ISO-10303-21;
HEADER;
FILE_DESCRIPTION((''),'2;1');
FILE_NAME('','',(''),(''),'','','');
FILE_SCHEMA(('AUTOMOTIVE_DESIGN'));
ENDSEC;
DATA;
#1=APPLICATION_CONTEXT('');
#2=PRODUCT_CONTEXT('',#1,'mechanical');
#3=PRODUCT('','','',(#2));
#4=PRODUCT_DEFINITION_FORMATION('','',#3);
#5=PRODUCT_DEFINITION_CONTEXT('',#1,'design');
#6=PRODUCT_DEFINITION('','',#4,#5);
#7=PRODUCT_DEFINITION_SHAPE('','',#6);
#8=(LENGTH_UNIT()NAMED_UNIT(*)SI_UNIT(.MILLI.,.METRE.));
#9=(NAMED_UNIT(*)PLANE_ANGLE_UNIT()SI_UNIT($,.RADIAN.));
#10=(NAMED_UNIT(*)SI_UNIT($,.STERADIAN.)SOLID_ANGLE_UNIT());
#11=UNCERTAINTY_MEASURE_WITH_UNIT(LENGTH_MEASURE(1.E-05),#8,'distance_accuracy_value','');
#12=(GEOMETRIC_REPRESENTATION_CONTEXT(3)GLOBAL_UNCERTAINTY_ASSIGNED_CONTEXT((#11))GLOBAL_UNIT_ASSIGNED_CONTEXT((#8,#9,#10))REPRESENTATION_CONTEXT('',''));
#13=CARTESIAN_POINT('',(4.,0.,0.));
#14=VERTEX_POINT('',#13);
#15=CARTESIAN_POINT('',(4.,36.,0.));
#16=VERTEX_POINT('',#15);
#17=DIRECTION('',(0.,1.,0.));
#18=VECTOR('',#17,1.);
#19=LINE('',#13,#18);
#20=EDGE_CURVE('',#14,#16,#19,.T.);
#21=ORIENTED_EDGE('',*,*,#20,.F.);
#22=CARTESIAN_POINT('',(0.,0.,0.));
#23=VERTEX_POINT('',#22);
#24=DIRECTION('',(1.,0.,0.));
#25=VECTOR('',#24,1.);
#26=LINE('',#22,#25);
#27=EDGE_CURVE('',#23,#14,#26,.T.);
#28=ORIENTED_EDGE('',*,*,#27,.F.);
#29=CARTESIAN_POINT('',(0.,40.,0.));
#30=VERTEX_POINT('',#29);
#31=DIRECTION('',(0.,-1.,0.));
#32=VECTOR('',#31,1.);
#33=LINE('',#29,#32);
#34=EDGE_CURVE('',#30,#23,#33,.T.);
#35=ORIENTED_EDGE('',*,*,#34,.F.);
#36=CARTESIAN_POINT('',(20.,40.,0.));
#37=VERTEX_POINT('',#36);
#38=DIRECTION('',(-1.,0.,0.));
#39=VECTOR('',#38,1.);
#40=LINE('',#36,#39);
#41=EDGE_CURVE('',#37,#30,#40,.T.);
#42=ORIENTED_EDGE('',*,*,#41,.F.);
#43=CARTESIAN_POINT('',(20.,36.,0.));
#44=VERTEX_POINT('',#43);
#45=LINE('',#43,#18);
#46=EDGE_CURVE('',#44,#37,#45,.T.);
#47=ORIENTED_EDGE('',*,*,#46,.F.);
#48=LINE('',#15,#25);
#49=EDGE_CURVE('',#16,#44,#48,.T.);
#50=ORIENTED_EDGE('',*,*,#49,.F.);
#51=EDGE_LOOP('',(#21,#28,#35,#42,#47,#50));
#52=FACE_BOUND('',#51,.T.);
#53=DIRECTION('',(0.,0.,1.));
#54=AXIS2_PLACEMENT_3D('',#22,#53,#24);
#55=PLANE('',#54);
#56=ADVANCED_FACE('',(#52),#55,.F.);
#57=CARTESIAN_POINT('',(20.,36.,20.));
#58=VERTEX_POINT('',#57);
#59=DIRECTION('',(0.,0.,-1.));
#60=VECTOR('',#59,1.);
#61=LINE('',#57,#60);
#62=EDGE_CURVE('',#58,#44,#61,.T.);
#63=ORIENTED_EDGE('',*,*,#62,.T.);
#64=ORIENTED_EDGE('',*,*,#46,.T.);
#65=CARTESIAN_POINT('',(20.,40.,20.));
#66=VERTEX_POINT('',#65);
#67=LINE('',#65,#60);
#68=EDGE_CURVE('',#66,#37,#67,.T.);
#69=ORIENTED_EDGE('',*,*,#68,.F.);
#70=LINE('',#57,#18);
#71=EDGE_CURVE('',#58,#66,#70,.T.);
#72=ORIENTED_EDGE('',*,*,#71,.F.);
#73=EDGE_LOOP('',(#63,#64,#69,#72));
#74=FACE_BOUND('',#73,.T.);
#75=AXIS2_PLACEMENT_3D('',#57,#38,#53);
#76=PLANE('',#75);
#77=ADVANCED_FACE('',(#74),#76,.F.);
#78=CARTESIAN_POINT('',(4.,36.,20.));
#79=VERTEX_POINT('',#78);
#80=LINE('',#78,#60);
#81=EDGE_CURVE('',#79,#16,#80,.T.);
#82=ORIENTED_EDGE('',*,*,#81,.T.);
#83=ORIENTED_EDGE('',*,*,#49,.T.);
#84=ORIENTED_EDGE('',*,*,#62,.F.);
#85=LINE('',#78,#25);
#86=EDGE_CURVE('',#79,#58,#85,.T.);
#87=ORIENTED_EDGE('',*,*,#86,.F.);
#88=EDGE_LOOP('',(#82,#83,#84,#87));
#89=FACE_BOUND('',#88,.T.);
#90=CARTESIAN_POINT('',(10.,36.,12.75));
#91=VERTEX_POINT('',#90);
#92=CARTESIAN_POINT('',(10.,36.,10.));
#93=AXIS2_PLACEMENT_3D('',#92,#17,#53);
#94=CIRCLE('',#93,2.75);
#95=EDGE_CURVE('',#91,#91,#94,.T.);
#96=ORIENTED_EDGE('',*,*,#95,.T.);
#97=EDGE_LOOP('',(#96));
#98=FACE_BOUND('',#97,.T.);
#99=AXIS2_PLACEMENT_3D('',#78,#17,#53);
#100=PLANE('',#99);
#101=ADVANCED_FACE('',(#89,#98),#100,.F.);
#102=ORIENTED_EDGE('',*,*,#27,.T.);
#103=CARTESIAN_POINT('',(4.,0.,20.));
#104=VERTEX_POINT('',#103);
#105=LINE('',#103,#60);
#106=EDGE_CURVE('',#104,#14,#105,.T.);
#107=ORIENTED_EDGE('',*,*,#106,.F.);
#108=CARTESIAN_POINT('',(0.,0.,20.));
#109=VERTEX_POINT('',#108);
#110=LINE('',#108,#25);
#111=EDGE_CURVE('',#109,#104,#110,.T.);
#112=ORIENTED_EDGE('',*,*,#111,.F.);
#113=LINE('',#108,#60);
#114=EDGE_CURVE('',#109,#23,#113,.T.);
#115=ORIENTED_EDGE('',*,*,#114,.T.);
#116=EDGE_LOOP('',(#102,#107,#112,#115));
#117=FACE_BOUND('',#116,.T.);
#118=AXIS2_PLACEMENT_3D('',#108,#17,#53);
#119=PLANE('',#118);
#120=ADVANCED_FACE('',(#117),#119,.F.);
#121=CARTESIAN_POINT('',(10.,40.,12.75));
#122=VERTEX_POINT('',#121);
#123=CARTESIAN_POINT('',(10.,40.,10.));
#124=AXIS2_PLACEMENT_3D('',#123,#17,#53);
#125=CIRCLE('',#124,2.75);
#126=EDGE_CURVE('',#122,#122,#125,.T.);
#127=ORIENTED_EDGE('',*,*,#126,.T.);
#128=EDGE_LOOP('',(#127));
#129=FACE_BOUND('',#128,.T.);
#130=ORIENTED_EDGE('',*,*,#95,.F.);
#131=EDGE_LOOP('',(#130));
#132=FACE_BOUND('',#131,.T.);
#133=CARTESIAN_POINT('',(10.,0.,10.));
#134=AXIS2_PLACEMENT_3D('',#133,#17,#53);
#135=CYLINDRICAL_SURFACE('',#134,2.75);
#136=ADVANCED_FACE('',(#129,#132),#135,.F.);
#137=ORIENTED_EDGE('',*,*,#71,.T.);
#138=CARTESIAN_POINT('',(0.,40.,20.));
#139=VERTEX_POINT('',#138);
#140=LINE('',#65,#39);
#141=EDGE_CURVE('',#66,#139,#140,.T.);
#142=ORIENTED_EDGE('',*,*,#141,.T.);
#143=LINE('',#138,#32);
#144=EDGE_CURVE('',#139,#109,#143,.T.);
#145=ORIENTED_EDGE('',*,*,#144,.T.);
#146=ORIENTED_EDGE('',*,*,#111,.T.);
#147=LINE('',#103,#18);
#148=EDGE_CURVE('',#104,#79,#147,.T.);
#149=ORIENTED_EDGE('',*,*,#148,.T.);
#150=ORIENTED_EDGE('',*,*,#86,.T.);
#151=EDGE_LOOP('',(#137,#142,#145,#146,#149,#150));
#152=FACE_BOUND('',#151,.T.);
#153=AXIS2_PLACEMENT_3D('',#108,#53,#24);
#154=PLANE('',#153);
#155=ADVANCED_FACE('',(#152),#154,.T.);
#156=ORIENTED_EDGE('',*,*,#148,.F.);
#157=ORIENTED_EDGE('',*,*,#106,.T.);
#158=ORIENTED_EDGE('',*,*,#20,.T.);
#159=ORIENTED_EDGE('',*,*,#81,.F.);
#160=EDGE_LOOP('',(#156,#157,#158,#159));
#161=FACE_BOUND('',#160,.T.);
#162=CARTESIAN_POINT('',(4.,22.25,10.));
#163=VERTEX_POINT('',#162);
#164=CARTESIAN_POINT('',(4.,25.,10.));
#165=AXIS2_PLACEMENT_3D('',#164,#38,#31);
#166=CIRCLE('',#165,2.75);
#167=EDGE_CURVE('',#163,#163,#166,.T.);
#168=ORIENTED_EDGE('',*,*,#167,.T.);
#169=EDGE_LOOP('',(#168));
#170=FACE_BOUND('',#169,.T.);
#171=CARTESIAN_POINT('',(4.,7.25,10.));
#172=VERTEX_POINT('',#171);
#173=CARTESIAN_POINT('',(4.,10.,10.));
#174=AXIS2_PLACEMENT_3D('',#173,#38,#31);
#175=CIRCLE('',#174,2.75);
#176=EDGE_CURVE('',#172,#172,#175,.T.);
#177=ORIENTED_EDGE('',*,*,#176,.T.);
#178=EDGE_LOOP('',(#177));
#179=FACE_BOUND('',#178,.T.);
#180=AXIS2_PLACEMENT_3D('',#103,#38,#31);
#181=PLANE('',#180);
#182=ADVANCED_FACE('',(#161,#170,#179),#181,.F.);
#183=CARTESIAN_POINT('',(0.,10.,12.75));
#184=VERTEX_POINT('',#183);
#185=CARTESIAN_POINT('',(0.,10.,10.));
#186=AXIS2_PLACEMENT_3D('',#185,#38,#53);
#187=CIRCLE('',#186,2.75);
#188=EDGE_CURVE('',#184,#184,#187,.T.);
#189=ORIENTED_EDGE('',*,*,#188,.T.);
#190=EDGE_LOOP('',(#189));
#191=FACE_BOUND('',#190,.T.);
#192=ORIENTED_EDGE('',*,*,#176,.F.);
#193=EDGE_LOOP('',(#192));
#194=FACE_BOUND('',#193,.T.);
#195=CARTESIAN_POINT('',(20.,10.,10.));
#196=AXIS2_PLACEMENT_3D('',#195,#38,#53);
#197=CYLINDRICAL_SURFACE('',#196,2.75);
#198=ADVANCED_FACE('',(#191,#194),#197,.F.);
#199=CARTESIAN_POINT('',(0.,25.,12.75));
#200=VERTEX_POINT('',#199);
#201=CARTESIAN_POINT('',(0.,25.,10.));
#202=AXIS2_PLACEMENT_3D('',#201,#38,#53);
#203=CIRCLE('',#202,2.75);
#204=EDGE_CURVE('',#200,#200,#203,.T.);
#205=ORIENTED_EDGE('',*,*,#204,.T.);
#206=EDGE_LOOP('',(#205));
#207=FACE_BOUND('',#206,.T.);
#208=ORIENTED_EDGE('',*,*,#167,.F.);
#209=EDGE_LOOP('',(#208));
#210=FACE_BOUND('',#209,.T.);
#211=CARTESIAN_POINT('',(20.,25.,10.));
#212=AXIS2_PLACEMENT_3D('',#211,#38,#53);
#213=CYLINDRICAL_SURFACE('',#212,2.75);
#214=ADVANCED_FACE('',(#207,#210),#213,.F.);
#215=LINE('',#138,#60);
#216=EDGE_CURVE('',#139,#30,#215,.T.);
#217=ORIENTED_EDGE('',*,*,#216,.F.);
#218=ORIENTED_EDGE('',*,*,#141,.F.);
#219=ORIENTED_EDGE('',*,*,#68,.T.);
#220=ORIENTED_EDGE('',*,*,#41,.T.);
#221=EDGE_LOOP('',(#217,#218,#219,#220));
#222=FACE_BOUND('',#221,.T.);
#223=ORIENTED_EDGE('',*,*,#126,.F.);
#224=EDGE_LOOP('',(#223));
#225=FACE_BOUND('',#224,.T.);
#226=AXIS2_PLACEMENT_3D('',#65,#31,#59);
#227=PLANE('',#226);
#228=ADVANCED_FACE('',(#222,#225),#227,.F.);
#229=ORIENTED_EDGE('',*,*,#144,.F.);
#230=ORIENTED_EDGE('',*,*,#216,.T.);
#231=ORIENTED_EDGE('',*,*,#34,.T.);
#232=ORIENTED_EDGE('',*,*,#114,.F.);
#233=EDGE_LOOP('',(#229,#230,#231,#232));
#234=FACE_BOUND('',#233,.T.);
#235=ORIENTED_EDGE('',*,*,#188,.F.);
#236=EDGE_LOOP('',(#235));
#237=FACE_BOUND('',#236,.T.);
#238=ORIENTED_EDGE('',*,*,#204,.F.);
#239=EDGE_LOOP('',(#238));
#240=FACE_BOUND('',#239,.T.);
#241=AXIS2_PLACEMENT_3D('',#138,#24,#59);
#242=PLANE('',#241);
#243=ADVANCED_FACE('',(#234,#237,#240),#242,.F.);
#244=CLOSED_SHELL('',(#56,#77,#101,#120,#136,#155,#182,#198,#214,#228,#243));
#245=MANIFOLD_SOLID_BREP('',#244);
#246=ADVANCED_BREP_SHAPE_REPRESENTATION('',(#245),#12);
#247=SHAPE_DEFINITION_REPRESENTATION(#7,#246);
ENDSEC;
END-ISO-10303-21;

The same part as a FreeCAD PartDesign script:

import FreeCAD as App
import Part
import Sketcher

V = App.Vector

doc = App.newDocument("Part")
params = doc.addObject("Spreadsheet::Sheet", "Params")
for row, (alias, value) in enumerate([
    ("sketch1_width", "4 mm"),
    ("sketch1_width2", "16 mm"),
    ("sketch1_height", "36 mm"),
    ("pad1_length", "20 mm"),
    ("sketch2_diameter", "5.5 mm"),
    ("sketch3_diameter", "5.5 mm"),
], start=1):
    params.set(f"A{row}", alias)
    params.set(f"B{row}", "=" + value)
    params.setAlias(f"B{row}", alias)

body = doc.addObject("PartDesign::Body", "Body")

# Sketch on XY plane
sketch1 = body.newObject("Sketcher::SketchObject", "Sketch")
sketch1.AttachmentSupport = (doc.getObject("XY_Plane"), [""])
sketch1.MapMode = "FlatFace"
sketch1.addGeometry([
    Part.LineSegment(V(0, 0, 0), V(4, 0, 0)),  # 0
    Part.LineSegment(V(4, 0, 0), V(4, 36, 0)),  # 1
    Part.LineSegment(V(4, 36, 0), V(20, 36, 0)),  # 2
    Part.LineSegment(V(20, 36, 0), V(20, 40, 0)),  # 3
    Part.LineSegment(V(20, 40, 0), V(0, 40, 0)),  # 4
    Part.LineSegment(V(0, 40, 0), V(0, 0, 0)),  # 5
], False)
sketch1.addConstraint([
    Sketcher.Constraint("Coincident", 0, 2, 1, 1),
    Sketcher.Constraint("Coincident", 1, 2, 2, 1),
    Sketcher.Constraint("Coincident", 2, 2, 3, 1),
    Sketcher.Constraint("Coincident", 3, 2, 4, 1),
    Sketcher.Constraint("Coincident", 4, 2, 5, 1),
    Sketcher.Constraint("Coincident", 5, 2, 0, 1),
    Sketcher.Constraint("Horizontal", 0),
    Sketcher.Constraint("Vertical", 1),
    Sketcher.Constraint("Horizontal", 2),
    Sketcher.Constraint("Vertical", 3),
    Sketcher.Constraint("Horizontal", 4),
    Sketcher.Constraint("Vertical", 5),
    Sketcher.Constraint("Coincident", 5, 2, -1, 1),
    Sketcher.Constraint("Equal", 0, 3),
    Sketcher.Constraint("DistanceX", 0, 1, 0, 2, 4.0),
    Sketcher.Constraint("DistanceX", 2, 1, 2, 2, 16.0),
    Sketcher.Constraint("DistanceY", 1, 1, 1, 2, 36.0),
])
sketch1.setExpression("Constraints[14]", "Params.sketch1_width")
sketch1.setExpression("Constraints[15]", "Params.sketch1_width2")
sketch1.setExpression("Constraints[16]", "Params.sketch1_height")
pad1 = body.newObject("PartDesign::Pad", "Pad")
pad1.Profile = sketch1
pad1.setExpression("Length", "Params.pad1_length")

# Sketch on XZ plane
sketch2 = body.newObject("Sketcher::SketchObject", "Sketch001")
sketch2.AttachmentSupport = (doc.getObject("XZ_Plane"), [""])
sketch2.MapMode = "FlatFace"
sketch2.AttachmentOffset = App.Placement(V(0, 0, -40), App.Rotation())
sketch2.addGeometry(Part.Circle(V(10, 10, 0), V(0, 0, 1), 2.75), False)
sketch2.addConstraint([
    Sketcher.Constraint("Diameter", 0, 5.5),
    Sketcher.Constraint("DistanceX", -1, 1, 0, 3, 10.0),
    Sketcher.Constraint("DistanceY", -1, 1, 0, 3, 10.0),
])
sketch2.setExpression("Constraints[0]", "Params.sketch2_diameter")
pocket1 = body.newObject("PartDesign::Pocket", "Pocket")
pocket1.Profile = sketch2
pocket1.Type = "ThroughAll"
pocket1.Reversed = True

# Sketch on YZ plane
sketch3 = body.newObject("Sketcher::SketchObject", "Sketch002")
sketch3.AttachmentSupport = (doc.getObject("YZ_Plane"), [""])
sketch3.MapMode = "FlatFace"
sketch3.addGeometry([
    Part.Circle(V(10, 10, 0), V(0, 0, 1), 2.75),
    Part.Circle(V(25, 10, 0), V(0, 0, 1), 2.75),
], False)
sketch3.addConstraint([
    Sketcher.Constraint("Equal", 0, 1),
    Sketcher.Constraint("Horizontal", 0, 3, 1, 3),
    Sketcher.Constraint("Diameter", 0, 5.5),
    Sketcher.Constraint("DistanceX", -1, 1, 0, 3, 10.0),
    Sketcher.Constraint("DistanceY", -1, 1, 0, 3, 10.0),
    Sketcher.Constraint("DistanceX", -1, 1, 1, 3, 25.0),
])
sketch3.setExpression("Constraints[2]", "Params.sketch3_diameter")
pocket2 = body.newObject("PartDesign::Pocket", "Pocket001")
pocket2.Profile = sketch3
pocket2.Type = "ThroughAll"
pocket2.Reversed = True

doc.recompute()
